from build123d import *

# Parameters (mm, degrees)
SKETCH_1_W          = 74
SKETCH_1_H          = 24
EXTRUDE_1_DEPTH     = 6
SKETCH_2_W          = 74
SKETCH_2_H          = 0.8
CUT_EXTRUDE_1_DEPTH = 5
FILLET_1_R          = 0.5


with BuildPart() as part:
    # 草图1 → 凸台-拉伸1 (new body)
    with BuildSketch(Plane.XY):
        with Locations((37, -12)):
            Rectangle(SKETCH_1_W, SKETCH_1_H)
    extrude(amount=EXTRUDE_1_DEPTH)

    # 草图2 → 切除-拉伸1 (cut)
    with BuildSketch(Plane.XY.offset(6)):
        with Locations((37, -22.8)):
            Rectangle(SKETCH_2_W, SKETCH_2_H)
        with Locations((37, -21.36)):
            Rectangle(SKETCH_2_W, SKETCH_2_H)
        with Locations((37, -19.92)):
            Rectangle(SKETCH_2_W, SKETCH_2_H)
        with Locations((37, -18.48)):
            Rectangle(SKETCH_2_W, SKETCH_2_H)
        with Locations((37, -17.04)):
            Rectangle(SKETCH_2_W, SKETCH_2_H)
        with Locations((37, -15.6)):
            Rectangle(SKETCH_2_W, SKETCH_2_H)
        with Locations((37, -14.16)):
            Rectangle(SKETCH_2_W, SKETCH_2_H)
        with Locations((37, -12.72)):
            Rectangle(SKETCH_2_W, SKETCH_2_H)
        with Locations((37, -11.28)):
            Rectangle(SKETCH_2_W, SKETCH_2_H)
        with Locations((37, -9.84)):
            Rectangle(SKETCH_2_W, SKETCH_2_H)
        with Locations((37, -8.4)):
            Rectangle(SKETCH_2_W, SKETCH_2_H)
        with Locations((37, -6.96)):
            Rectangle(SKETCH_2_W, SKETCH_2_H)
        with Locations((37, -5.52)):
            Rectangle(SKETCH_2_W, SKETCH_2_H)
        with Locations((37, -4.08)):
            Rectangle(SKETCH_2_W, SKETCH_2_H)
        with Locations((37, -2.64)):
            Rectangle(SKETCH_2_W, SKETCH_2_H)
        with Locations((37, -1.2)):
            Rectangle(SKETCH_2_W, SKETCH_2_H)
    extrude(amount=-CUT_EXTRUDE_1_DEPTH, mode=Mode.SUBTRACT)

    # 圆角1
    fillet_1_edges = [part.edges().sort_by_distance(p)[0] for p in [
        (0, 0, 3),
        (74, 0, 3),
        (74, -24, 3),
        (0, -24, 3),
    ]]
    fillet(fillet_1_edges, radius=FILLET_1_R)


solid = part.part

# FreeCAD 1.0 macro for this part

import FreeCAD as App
import Part
import Sketcher

V = App.Vector
Q = App.Units.Quantity


def edges_at(feature, points):
    """Names of the edges that pass closest to the given points."""
    edges = feature.Shape.Edges
    near = lambda p: min(range(len(edges)), key=lambda i: edges[i].distToShape(Part.Vertex(*p))[0])
    return sorted({f"Edge{near(p) + 1}" for p in points})

doc = App.newDocument("Part")
body = doc.addObject("PartDesign::Body", "Body")

# Sketch on XY plane
sketch1 = body.newObject("Sketcher::SketchObject", "Sketch")
sketch1.AttachmentSupport = (doc.getObject("XY_Plane"), [""])
sketch1.MapMode = "FlatFace"
sketch1.addGeometry(Part.LineSegment(V(0, 0, 0), V(0, -24, 0)), False)
sketch1.addGeometry(Part.LineSegment(V(0, -24, 0), V(74, -24, 0)), False)
sketch1.addGeometry(Part.LineSegment(V(74, -24, 0), V(74, 0, 0)), False)
sketch1.addGeometry(Part.LineSegment(V(74, 0, 0), V(0, 0, 0)), False)
sketch1.addConstraint(Sketcher.Constraint("Coincident", 0, 2, 1, 1))
sketch1.addConstraint(Sketcher.Constraint("Coincident", 1, 2, 2, 1))
sketch1.addConstraint(Sketcher.Constraint("Coincident", 2, 2, 3, 1))
sketch1.addConstraint(Sketcher.Constraint("Coincident", 3, 2, 0, 1))
sketch1.addConstraint(Sketcher.Constraint("Vertical", 0))
sketch1.addConstraint(Sketcher.Constraint("Horizontal", 1))
sketch1.addConstraint(Sketcher.Constraint("Vertical", 2))
sketch1.addConstraint(Sketcher.Constraint("Horizontal", 3))
sketch1.addConstraint(Sketcher.Constraint("Coincident", 3, 2, -1, 1))
sketch1.addConstraint(Sketcher.Constraint("DistanceX", 1, 1, 1, 2, Q("74 mm")))
sketch1.addConstraint(Sketcher.Constraint("DistanceY", 0, 2, 0, 1, Q("24 mm")))
pad1 = body.newObject("PartDesign::Pad", "Pad")
pad1.Profile = sketch1
pad1.Length = 6

# Sketch on XY plane
sketch2 = body.newObject("Sketcher::SketchObject", "Sketch001")
sketch2.AttachmentSupport = (doc.getObject("XY_Plane"), [""])
sketch2.MapMode = "FlatFace"
sketch2.AttachmentOffset = App.Placement(V(0, 0, 6), App.Rotation())
sketch2.addGeometry(Part.LineSegment(V(0, -22.4, 0), V(0, -23.2, 0)), False)
sketch2.addGeometry(Part.LineSegment(V(0, -23.2, 0), V(74, -23.2, 0)), False)
sketch2.addGeometry(Part.LineSegment(V(74, -23.2, 0), V(74, -22.4, 0)), False)
sketch2.addGeometry(Part.LineSegment(V(74, -22.4, 0), V(0, -22.4, 0)), False)
sketch2.addGeometry(Part.LineSegment(V(0, -21, 0), V(0, -21.8, 0)), False)
sketch2.addGeometry(Part.LineSegment(V(0, -21.8, 0), V(74, -21.8, 0)), False)
sketch2.addGeometry(Part.LineSegment(V(74, -21.8, 0), V(74, -21, 0)), False)
sketch2.addGeometry(Part.LineSegment(V(74, -21, 0), V(0, -21, 0)), False)
sketch2.addGeometry(Part.LineSegment(V(0, -19.5, 0), V(0, -20.3, 0)), False)
sketch2.addGeometry(Part.LineSegment(V(0, -20.3, 0), V(74, -20.3, 0)), False)
sketch2.addGeometry(Part.LineSegment(V(74, -20.3, 0), V(74, -19.5, 0)), False)
sketch2.addGeometry(Part.LineSegment(V(74, -19.5, 0), V(0, -19.5, 0)), False)
sketch2.addGeometry(Part.LineSegment(V(0, -18.1, 0), V(0, -18.9, 0)), False)
sketch2.addGeometry(Part.LineSegment(V(0, -18.9, 0), V(74, -18.9, 0)), False)
sketch2.addGeometry(Part.LineSegment(V(74, -18.9, 0), V(74, -18.1, 0)), False)
sketch2.addGeometry(Part.LineSegment(V(74, -18.1, 0), V(0, -18.1, 0)), False)
sketch2.addGeometry(Part.LineSegment(V(0, -16.6, 0), V(0, -17.4, 0)), False)
sketch2.addGeometry(Part.LineSegment(V(0, -17.4, 0), V(74, -17.4, 0)), False)
sketch2.addGeometry(Part.LineSegment(V(74, -17.4, 0), V(74, -16.6, 0)), False)
sketch2.addGeometry(Part.LineSegment(V(74, -16.6, 0), V(0, -16.6, 0)), False)
sketch2.addGeometry(Part.LineSegment(V(0, -15.2, 0), V(0, -16, 0)), False)
sketch2.addGeometry(Part.LineSegment(V(0, -16, 0), V(74, -16, 0)), False)
sketch2.addGeometry(Part.LineSegment(V(74, -16, 0), V(74, -15.2, 0)), False)
sketch2.addGeometry(Part.LineSegment(V(74, -15.2, 0), V(0, -15.2, 0)), False)
sketch2.addGeometry(Part.LineSegment(V(0, -13.8, 0), V(0, -14.6, 0)), False)
sketch2.addGeometry(Part.LineSegment(V(0, -14.6, 0), V(74, -14.6, 0)), False)
sketch2.addGeometry(Part.LineSegment(V(74, -14.6, 0), V(74, -13.8, 0)), False)
sketch2.addGeometry(Part.LineSegment(V(74, -13.8, 0), V(0, -13.8, 0)), False)
sketch2.addGeometry(Part.LineSegment(V(0, -12.3, 0), V(0, -13.1, 0)), False)
sketch2.addGeometry(Part.LineSegment(V(0, -13.1, 0), V(74, -13.1, 0)), False)
sketch2.addGeometry(Part.LineSegment(V(74, -13.1, 0), V(74, -12.3, 0)), False)
sketch2.addGeometry(Part.LineSegment(V(74, -12.3, 0), V(0, -12.3, 0)), False)
sketch2.addGeometry(Part.LineSegment(V(0, -10.9, 0), V(0, -11.7, 0)), False)
sketch2.addGeometry(Part.LineSegment(V(0, -11.7, 0), V(74, -11.7, 0)), False)
sketch2.addGeometry(Part.LineSegment(V(74, -11.7, 0), V(74, -10.9, 0)), False)
sketch2.addGeometry(Part.LineSegment(V(74, -10.9, 0), V(0, -10.9, 0)), False)
sketch2.addGeometry(Part.LineSegment(V(0, -9.4, 0), V(0, -10.2, 0)), False)
sketch2.addGeometry(Part.LineSegment(V(0, -10.2, 0), V(74, -10.2, 0)), False)
sketch2.addGeometry(Part.LineSegment(V(74, -10.2, 0), V(74, -9.4, 0)), False)
sketch2.addGeometry(Part.LineSegment(V(74, -9.4, 0), V(0, -9.4, 0)), False)
sketch2.addGeometry(Part.LineSegment(V(0, -8, 0), V(0, -8.8, 0)), False)
sketch2.addGeometry(Part.LineSegment(V(0, -8.8, 0), V(74, -8.8, 0)), False)
sketch2.addGeometry(Part.LineSegment(V(74, -8.8, 0), V(74, -8, 0)), False)
sketch2.addGeometry(Part.LineSegment(V(74, -8, 0), V(0, -8, 0)), False)
sketch2.addGeometry(Part.LineSegment(V(0, -6.6, 0), V(0, -7.4, 0)), False)
sketch2.addGeometry(Part.LineSegment(V(0, -7.4, 0), V(74, -7.4, 0)), False)
sketch2.addGeometry(Part.LineSegment(V(74, -7.4, 0), V(74, -6.6, 0)), False)
sketch2.addGeometry(Part.LineSegment(V(74, -6.6, 0), V(0, -6.6, 0)), False)
sketch2.addGeometry(Part.LineSegment(V(0, -5.1, 0), V(0, -5.9, 0)), False)
sketch2.addGeometry(Part.LineSegment(V(0, -5.9, 0), V(74, -5.9, 0)), False)
sketch2.addGeometry(Part.LineSegment(V(74, -5.9, 0), V(74, -5.1, 0)), False)
sketch2.addGeometry(Part.LineSegment(V(74, -5.1, 0), V(0, -5.1, 0)), False)
sketch2.addGeometry(Part.LineSegment(V(0, -3.7, 0), V(0, -4.5, 0)), False)
sketch2.addGeometry(Part.LineSegment(V(0, -4.5, 0), V(74, -4.5, 0)), False)
sketch2.addGeometry(Part.LineSegment(V(74, -4.5, 0), V(74, -3.7, 0)), False)
sketch2.addGeometry(Part.LineSegment(V(74, -3.7, 0), V(0, -3.7, 0)), False)
sketch2.addGeometry(Part.LineSegment(V(0, -2.2, 0), V(0, -3, 0)), False)
sketch2.addGeometry(Part.LineSegment(V(0, -3, 0), V(74, -3, 0)), False)
sketch2.addGeometry(Part.LineSegment(V(74, -3, 0), V(74, -2.2, 0)), False)
sketch2.addGeometry(Part.LineSegment(V(74, -2.2, 0), V(0, -2.2, 0)), False)
sketch2.addGeometry(Part.LineSegment(V(0, -0.8, 0), V(0, -1.6, 0)), False)
sketch2.addGeometry(Part.LineSegment(V(0, -1.6, 0), V(74, -1.6, 0)), False)
sketch2.addGeometry(Part.LineSegment(V(74, -1.6, 0), V(74, -0.8, 0)), False)
sketch2.addGeometry(Part.LineSegment(V(74, -0.8, 0), V(0, -0.8, 0)), False)
sketch2.addConstraint(Sketcher.Constraint("Coincident", 0, 2, 1, 1))
sketch2.addConstraint(Sketcher.Constraint("Coincident", 1, 2, 2, 1))
sketch2.addConstraint(Sketcher.Constraint("Coincident", 2, 2, 3, 1))
sketch2.addConstraint(Sketcher.Constraint("Coincident", 3, 2, 0, 1))
sketch2.addConstraint(Sketcher.Constraint("Coincident", 4, 2, 5, 1))
sketch2.addConstraint(Sketcher.Constraint("Coincident", 5, 2, 6, 1))
sketch2.addConstraint(Sketcher.Constraint("Coincident", 6, 2, 7, 1))
sketch2.addConstraint(Sketcher.Constraint("Coincident", 7, 2, 4, 1))
sketch2.addConstraint(Sketcher.Constraint("Coincident", 8, 2, 9, 1))
sketch2.addConstraint(Sketcher.Constraint("Coincident", 9, 2, 10, 1))
sketch2.addConstraint(Sketcher.Constraint("Coincident", 10, 2, 11, 1))
sketch2.addConstraint(Sketcher.Constraint("Coincident", 11, 2, 8, 1))
sketch2.addConstraint(Sketcher.Constraint("Coincident", 12, 2, 13, 1))
sketch2.addConstraint(Sketcher.Constraint("Coincident", 13, 2, 14, 1))
sketch2.addConstraint(Sketcher.Constraint("Coincident", 14, 2, 15, 1))
sketch2.addConstraint(Sketcher.Constraint("Coincident", 15, 2, 12, 1))
sketch2.addConstraint(Sketcher.Constraint("Coincident", 16, 2, 17, 1))
sketch2.addConstraint(Sketcher.Constraint("Coincident", 17, 2, 18, 1))
sketch2.addConstraint(Sketcher.Constraint("Coincident", 18, 2, 19, 1))
sketch2.addConstraint(Sketcher.Constraint("Coincident", 19, 2, 16, 1))
sketch2.addConstraint(Sketcher.Constraint("Coincident", 20, 2, 21, 1))
sketch2.addConstraint(Sketcher.Constraint("Coincident", 21, 2, 22, 1))
sketch2.addConstraint(Sketcher.Constraint("Coincident", 22, 2, 23, 1))
sketch2.addConstraint(Sketcher.Constraint("Coincident", 23, 2, 20, 1))
sketch2.addConstraint(Sketcher.Constraint("Coincident", 24, 2, 25, 1))
sketch2.addConstraint(Sketcher.Constraint("Coincident", 25, 2, 26, 1))
sketch2.addConstraint(Sketcher.Constraint("Coincident", 26, 2, 27, 1))
sketch2.addConstraint(Sketcher.Constraint("Coincident", 27, 2, 24, 1))
sketch2.addConstraint(Sketcher.Constraint("Coincident", 28, 2, 29, 1))
sketch2.addConstraint(Sketcher.Constraint("Coincident", 29, 2, 30, 1))
sketch2.addConstraint(Sketcher.Constraint("Coincident", 30, 2, 31, 1))
sketch2.addConstraint(Sketcher.Constraint("Coincident", 31, 2, 28, 1))
sketch2.addConstraint(Sketcher.Constraint("Coincident", 32, 2, 33, 1))
sketch2.addConstraint(Sketcher.Constraint("Coincident", 33, 2, 34, 1))
sketch2.addConstraint(Sketcher.Constraint("Coincident", 34, 2, 35, 1))
sketch2.addConstraint(Sketcher.Constraint("Coincident", 35, 2, 32, 1))
sketch2.addConstraint(Sketcher.Constraint("Coincident", 36, 2, 37, 1))
sketch2.addConstraint(Sketcher.Constraint("Coincident", 37, 2, 38, 1))
sketch2.addConstraint(Sketcher.Constraint("Coincident", 38, 2, 39, 1))
sketch2.addConstraint(Sketcher.Constraint("Coincident", 39, 2, 36, 1))
sketch2.addConstraint(Sketcher.Constraint("Coincident", 40, 2, 41, 1))
sketch2.addConstraint(Sketcher.Constraint("Coincident", 41, 2, 42, 1))
sketch2.addConstraint(Sketcher.Constraint("Coincident", 42, 2, 43, 1))
sketch2.addConstraint(Sketcher.Constraint("Coincident", 43, 2, 40, 1))
sketch2.addConstraint(Sketcher.Constraint("Coincident", 44, 2, 45, 1))
sketch2.addConstraint(Sketcher.Constraint("Coincident", 45, 2, 46, 1))
sketch2.addConstraint(Sketcher.Constraint("Coincident", 46, 2, 47, 1))
sketch2.addConstraint(Sketcher.Constraint("Coincident", 47, 2, 44, 1))
sketch2.addConstraint(Sketcher.Constraint("Coincident", 48, 2, 49, 1))
sketch2.addConstraint(Sketcher.Constraint("Coincident", 49, 2, 50, 1))
sketch2.addConstraint(Sketcher.Constraint("Coincident", 50, 2, 51, 1))
sketch2.addConstraint(Sketcher.Constraint("Coincident", 51, 2, 48, 1))
sketch2.addConstraint(Sketcher.Constraint("Coincident", 52, 2, 53, 1))
sketch2.addConstraint(Sketcher.Constraint("Coincident", 53, 2, 54, 1))
sketch2.addConstraint(Sketcher.Constraint("Coincident", 54, 2, 55, 1))
sketch2.addConstraint(Sketcher.Constraint("Coincident", 55, 2, 52, 1))
sketch2.addConstraint(Sketcher.Constraint("Coincident", 56, 2, 57, 1))
sketch2.addConstraint(Sketcher.Constraint("Coincident", 57, 2, 58, 1))
sketch2.addConstraint(Sketcher.Constraint("Coincident", 58, 2, 59, 1))
sketch2.addConstraint(Sketcher.Constraint("Coincident", 59, 2, 56, 1))
sketch2.addConstraint(Sketcher.Constraint("Coincident", 60, 2, 61, 1))
sketch2.addConstraint(Sketcher.Constraint("Coincident", 61, 2, 62, 1))
sketch2.addConstraint(Sketcher.Constraint("Coincident", 62, 2, 63, 1))
sketch2.addConstraint(Sketcher.Constraint("Coincident", 63, 2, 60, 1))
sketch2.addConstraint(Sketcher.Constraint("Vertical", 0))
sketch2.addConstraint(Sketcher.Constraint("Horizontal", 1))
sketch2.addConstraint(Sketcher.Constraint("Vertical", 2))
sketch2.addConstraint(Sketcher.Constraint("Horizontal", 3))
sketch2.addConstraint(Sketcher.Constraint("Vertical", 4))
sketch2.addConstraint(Sketcher.Constraint("Horizontal", 5))
sketch2.addConstraint(Sketcher.Constraint("Vertical", 6))
sketch2.addConstraint(Sketcher.Constraint("Horizontal", 7))
sketch2.addConstraint(Sketcher.Constraint("Vertical", 8))
sketch2.addConstraint(Sketcher.Constraint("Horizontal", 9))
sketch2.addConstraint(Sketcher.Constraint("Vertical", 10))
sketch2.addConstraint(Sketcher.Constraint("Horizontal", 11))
sketch2.addConstraint(Sketcher.Constraint("Vertical", 12))
sketch2.addConstraint(Sketcher.Constraint("Horizontal", 13))
sketch2.addConstraint(Sketcher.Constraint("Vertical", 14))
sketch2.addConstraint(Sketcher.Constraint("Horizontal", 15))
sketch2.addConstraint(Sketcher.Constraint("Vertical", 16))
sketch2.addConstraint(Sketcher.Constraint("Horizontal", 17))
sketch2.addConstraint(Sketcher.Constraint("Vertical", 18))
sketch2.addConstraint(Sketcher.Constraint("Horizontal", 19))
sketch2.addConstraint(Sketcher.Constraint("Vertical", 20))
sketch2.addConstraint(Sketcher.Constraint("Horizontal", 21))
sketch2.addConstraint(Sketcher.Constraint("Vertical", 22))
sketch2.addConstraint(Sketcher.Constraint("Horizontal", 23))
sketch2.addConstraint(Sketcher.Constraint("Vertical", 24))
sketch2.addConstraint(Sketcher.Constraint("Horizontal", 25))
sketch2.addConstraint(Sketcher.Constraint("Vertical", 26))
sketch2.addConstraint(Sketcher.Constraint("Horizontal", 27))
sketch2.addConstraint(Sketcher.Constraint("Vertical", 28))
sketch2.addConstraint(Sketcher.Constraint("Horizontal", 29))
sketch2.addConstraint(Sketcher.Constraint("Vertical", 30))
sketch2.addConstraint(Sketcher.Constraint("Horizontal", 31))
sketch2.addConstraint(Sketcher.Constraint("Vertical", 32))
sketch2.addConstraint(Sketcher.Constraint("Horizontal", 33))
sketch2.addConstraint(Sketcher.Constraint("Vertical", 34))
sketch2.addConstraint(Sketcher.Constraint("Horizontal", 35))
sketch2.addConstraint(Sketcher.Constraint("Vertical", 36))
sketch2.addConstraint(Sketcher.Constraint("Horizontal", 37))
sketch2.addConstraint(Sketcher.Constraint("Vertical", 38))
sketch2.addConstraint(Sketcher.Constraint("Horizontal", 39))
sketch2.addConstraint(Sketcher.Constraint("Vertical", 40))
sketch2.addConstraint(Sketcher.Constraint("Horizontal", 41))
sketch2.addConstraint(Sketcher.Constraint("Vertical", 42))
sketch2.addConstraint(Sketcher.Constraint("Horizontal", 43))
sketch2.addConstraint(Sketcher.Constraint("Vertical", 44))
sketch2.addConstraint(Sketcher.Constraint("Horizontal", 45))
sketch2.addConstraint(Sketcher.Constraint("Vertical", 46))
sketch2.addConstraint(Sketcher.Constraint("Horizontal", 47))
sketch2.addConstraint(Sketcher.Constraint("Vertical", 48))
sketch2.addConstraint(Sketcher.Constraint("Horizontal", 49))
sketch2.addConstraint(Sketcher.Constraint("Vertical", 50))
sketch2.addConstraint(Sketcher.Constraint("Horizontal", 51))
sketch2.addConstraint(Sketcher.Constraint("Vertical", 52))
sketch2.addConstraint(Sketcher.Constraint("Horizontal", 53))
sketch2.addConstraint(Sketcher.Constraint("Vertical", 54))
sketch2.addConstraint(Sketcher.Constraint("Horizontal", 55))
sketch2.addConstraint(Sketcher.Constraint("Vertical", 56))
sketch2.addConstraint(Sketcher.Constraint("Horizontal", 57))
sketch2.addConstraint(Sketcher.Constraint("Vertical", 58))
sketch2.addConstraint(Sketcher.Constraint("Horizontal", 59))
sketch2.addConstraint(Sketcher.Constraint("Vertical", 60))
sketch2.addConstraint(Sketcher.Constraint("Horizontal", 61))
sketch2.addConstraint(Sketcher.Constraint("Vertical", 62))
sketch2.addConstraint(Sketcher.Constraint("Horizontal", 63))
sketch2.addConstraint(Sketcher.Constraint("PointOnObject", 0, 2, -2))
sketch2.addConstraint(Sketcher.Constraint("PointOnObject", 4, 2, -2))
sketch2.addConstraint(Sketcher.Constraint("PointOnObject", 8, 2, -2))
sketch2.addConstraint(Sketcher.Constraint("PointOnObject", 12, 2, -2))
sketch2.addConstraint(Sketcher.Constraint("PointOnObject", 16, 2, -2))
sketch2.addConstraint(Sketcher.Constraint("PointOnObject", 20, 2, -2))
sketch2.addConstraint(Sketcher.Constraint("PointOnObject", 24, 2, -2))
sketch2.addConstraint(Sketcher.Constraint("PointOnObject", 28, 2, -2))
sketch2.addConstraint(Sketcher.Constraint("PointOnObject", 32, 2, -2))
sketch2.addConstraint(Sketcher.Constraint("PointOnObject", 36, 2, -2))
sketch2.addConstraint(Sketcher.Constraint("PointOnObject", 40, 2, -2))
sketch2.addConstraint(Sketcher.Constraint("PointOnObject", 44, 2, -2))
sketch2.addConstraint(Sketcher.Constraint("PointOnObject", 48, 2, -2))
sketch2.addConstraint(Sketcher.Constraint("PointOnObject", 52, 2, -2))
sketch2.addConstraint(Sketcher.Constraint("PointOnObject", 56, 2, -2))
sketch2.addConstraint(Sketcher.Constraint("PointOnObject", 60, 2, -2))
sketch2.addConstraint(Sketcher.Constraint("Vertical", 2, 2, 5, 2))
sketch2.addConstraint(Sketcher.Constraint("Vertical", 6, 2, 9, 2))
sketch2.addConstraint(Sketcher.Constraint("Vertical", 10, 2, 13, 2))
sketch2.addConstraint(Sketcher.Constraint("Vertical", 14, 2, 17, 2))
sketch2.addConstraint(Sketcher.Constraint("Vertical", 18, 2, 21, 2))
sketch2.addConstraint(Sketcher.Constraint("Vertical", 22, 2, 25, 2))
sketch2.addConstraint(Sketcher.Constraint("Vertical", 26, 2, 29, 2))
sketch2.addConstraint(Sketcher.Constraint("Vertical", 30, 2, 33, 2))
sketch2.addConstraint(Sketcher.Constraint("Vertical", 34, 2, 37, 2))
sketch2.addConstraint(Sketcher.Constraint("Vertical", 38, 2, 41, 2))
sketch2.addConstraint(Sketcher.Constraint("Vertical", 42, 2, 45, 2))
sketch2.addConstraint(Sketcher.Constraint("Vertical", 46, 2, 49, 2))
sketch2.addConstraint(Sketcher.Constraint("Vertical", 50, 2, 53, 2))
sketch2.addConstraint(Sketcher.Constraint("Vertical", 54, 2, 57, 2))
sketch2.addConstraint(Sketcher.Constraint("Vertical", 58, 2, 61, 2))
sketch2.addConstraint(Sketcher.Constraint("Equal", 2, 4))
sketch2.addConstraint(Sketcher.Constraint("Equal", 6, 8))
sketch2.addConstraint(Sketcher.Constraint("Equal", 10, 12))
sketch2.addConstraint(Sketcher.Constraint("Equal", 14, 16))
sketch2.addConstraint(Sketcher.Constraint("Equal", 18, 20))
sketch2.addConstraint(Sketcher.Constraint("Equal", 22, 24))
sketch2.addConstraint(Sketcher.Constraint("Equal", 26, 28))
sketch2.addConstraint(Sketcher.Constraint("Equal", 30, 32))
sketch2.addConstraint(Sketcher.Constraint("Equal", 34, 36))
sketch2.addConstraint(Sketcher.Constraint("Equal", 38, 40))
sketch2.addConstraint(Sketcher.Constraint("Equal", 42, 44))
sketch2.addConstraint(Sketcher.Constraint("Equal", 46, 48))
sketch2.addConstraint(Sketcher.Constraint("Equal", 50, 52))
sketch2.addConstraint(Sketcher.Constraint("Equal", 54, 56))
sketch2.addConstraint(Sketcher.Constraint("Equal", 58, 60))
sketch2.addConstraint(Sketcher.Constraint("DistanceX", 1, 1, 1, 2, Q("74 mm")))
sketch2.addConstraint(Sketcher.Constraint("DistanceY", 0, 2, 0, 1, Q("0.8 mm")))
sketch2.addConstraint(Sketcher.Constraint("DistanceY", 20, 2, -1, 1, Q("16 mm")))
sketch2.addConstraint(Sketcher.Constraint("DistanceY", 42, 2, -1, 1, Q("8 mm")))
sketch2.addConstraint(Sketcher.Constraint("DistanceY", 0, 2, -1, 1, Q("23.2 mm")))
sketch2.addConstraint(Sketcher.Constraint("DistanceY", 60, 2, -1, 1, Q("1.6 mm")))
sketch2.addConstraint(Sketcher.Constraint("DistanceY", 4, 2, -1, 1, Q("21.76 mm")))
sketch2.addConstraint(Sketcher.Constraint("DistanceY", 8, 2, -1, 1, Q("20.32 mm")))
sketch2.addConstraint(Sketcher.Constraint("DistanceY", 12, 2, -1, 1, Q("18.88 mm")))
sketch2.addConstraint(Sketcher.Constraint("DistanceY", 16, 2, -1, 1, Q("17.44 mm")))
sketch2.addConstraint(Sketcher.Constraint("DistanceY", 24, 2, -1, 1, Q("14.56 mm")))
sketch2.addConstraint(Sketcher.Constraint("DistanceY", 28, 2, -1, 1, Q("13.12 mm")))
sketch2.addConstraint(Sketcher.Constraint("DistanceY", 32, 2, -1, 1, Q("11.68 mm")))
sketch2.addConstraint(Sketcher.Constraint("DistanceY", 36, 2, -1, 1, Q("10.24 mm")))
sketch2.addConstraint(Sketcher.Constraint("DistanceY", 44, 2, -1, 1, Q("7.36 mm")))
sketch2.addConstraint(Sketcher.Constraint("DistanceY", 48, 2, -1, 1, Q("5.92 mm")))
sketch2.addConstraint(Sketcher.Constraint("DistanceY", 52, 2, -1, 1, Q("4.48 mm")))
sketch2.addConstraint(Sketcher.Constraint("DistanceY", 56, 2, -1, 1, Q("3.04 mm")))
pocket1 = body.newObject("PartDesign::Pocket", "Pocket")
pocket1.Profile = sketch2
pocket1.Length = 5
doc.recompute()

fillet = body.newObject("PartDesign::Fillet", "Fillet")
fillet.Base = (pocket1, edges_at(pocket1, [
    (0, 0, 3),
    (74, 0, 3),
    (74, -24, 3),
    (0, -24, 3),
]))
fillet.Radius = 0.5

doc.recompute()
